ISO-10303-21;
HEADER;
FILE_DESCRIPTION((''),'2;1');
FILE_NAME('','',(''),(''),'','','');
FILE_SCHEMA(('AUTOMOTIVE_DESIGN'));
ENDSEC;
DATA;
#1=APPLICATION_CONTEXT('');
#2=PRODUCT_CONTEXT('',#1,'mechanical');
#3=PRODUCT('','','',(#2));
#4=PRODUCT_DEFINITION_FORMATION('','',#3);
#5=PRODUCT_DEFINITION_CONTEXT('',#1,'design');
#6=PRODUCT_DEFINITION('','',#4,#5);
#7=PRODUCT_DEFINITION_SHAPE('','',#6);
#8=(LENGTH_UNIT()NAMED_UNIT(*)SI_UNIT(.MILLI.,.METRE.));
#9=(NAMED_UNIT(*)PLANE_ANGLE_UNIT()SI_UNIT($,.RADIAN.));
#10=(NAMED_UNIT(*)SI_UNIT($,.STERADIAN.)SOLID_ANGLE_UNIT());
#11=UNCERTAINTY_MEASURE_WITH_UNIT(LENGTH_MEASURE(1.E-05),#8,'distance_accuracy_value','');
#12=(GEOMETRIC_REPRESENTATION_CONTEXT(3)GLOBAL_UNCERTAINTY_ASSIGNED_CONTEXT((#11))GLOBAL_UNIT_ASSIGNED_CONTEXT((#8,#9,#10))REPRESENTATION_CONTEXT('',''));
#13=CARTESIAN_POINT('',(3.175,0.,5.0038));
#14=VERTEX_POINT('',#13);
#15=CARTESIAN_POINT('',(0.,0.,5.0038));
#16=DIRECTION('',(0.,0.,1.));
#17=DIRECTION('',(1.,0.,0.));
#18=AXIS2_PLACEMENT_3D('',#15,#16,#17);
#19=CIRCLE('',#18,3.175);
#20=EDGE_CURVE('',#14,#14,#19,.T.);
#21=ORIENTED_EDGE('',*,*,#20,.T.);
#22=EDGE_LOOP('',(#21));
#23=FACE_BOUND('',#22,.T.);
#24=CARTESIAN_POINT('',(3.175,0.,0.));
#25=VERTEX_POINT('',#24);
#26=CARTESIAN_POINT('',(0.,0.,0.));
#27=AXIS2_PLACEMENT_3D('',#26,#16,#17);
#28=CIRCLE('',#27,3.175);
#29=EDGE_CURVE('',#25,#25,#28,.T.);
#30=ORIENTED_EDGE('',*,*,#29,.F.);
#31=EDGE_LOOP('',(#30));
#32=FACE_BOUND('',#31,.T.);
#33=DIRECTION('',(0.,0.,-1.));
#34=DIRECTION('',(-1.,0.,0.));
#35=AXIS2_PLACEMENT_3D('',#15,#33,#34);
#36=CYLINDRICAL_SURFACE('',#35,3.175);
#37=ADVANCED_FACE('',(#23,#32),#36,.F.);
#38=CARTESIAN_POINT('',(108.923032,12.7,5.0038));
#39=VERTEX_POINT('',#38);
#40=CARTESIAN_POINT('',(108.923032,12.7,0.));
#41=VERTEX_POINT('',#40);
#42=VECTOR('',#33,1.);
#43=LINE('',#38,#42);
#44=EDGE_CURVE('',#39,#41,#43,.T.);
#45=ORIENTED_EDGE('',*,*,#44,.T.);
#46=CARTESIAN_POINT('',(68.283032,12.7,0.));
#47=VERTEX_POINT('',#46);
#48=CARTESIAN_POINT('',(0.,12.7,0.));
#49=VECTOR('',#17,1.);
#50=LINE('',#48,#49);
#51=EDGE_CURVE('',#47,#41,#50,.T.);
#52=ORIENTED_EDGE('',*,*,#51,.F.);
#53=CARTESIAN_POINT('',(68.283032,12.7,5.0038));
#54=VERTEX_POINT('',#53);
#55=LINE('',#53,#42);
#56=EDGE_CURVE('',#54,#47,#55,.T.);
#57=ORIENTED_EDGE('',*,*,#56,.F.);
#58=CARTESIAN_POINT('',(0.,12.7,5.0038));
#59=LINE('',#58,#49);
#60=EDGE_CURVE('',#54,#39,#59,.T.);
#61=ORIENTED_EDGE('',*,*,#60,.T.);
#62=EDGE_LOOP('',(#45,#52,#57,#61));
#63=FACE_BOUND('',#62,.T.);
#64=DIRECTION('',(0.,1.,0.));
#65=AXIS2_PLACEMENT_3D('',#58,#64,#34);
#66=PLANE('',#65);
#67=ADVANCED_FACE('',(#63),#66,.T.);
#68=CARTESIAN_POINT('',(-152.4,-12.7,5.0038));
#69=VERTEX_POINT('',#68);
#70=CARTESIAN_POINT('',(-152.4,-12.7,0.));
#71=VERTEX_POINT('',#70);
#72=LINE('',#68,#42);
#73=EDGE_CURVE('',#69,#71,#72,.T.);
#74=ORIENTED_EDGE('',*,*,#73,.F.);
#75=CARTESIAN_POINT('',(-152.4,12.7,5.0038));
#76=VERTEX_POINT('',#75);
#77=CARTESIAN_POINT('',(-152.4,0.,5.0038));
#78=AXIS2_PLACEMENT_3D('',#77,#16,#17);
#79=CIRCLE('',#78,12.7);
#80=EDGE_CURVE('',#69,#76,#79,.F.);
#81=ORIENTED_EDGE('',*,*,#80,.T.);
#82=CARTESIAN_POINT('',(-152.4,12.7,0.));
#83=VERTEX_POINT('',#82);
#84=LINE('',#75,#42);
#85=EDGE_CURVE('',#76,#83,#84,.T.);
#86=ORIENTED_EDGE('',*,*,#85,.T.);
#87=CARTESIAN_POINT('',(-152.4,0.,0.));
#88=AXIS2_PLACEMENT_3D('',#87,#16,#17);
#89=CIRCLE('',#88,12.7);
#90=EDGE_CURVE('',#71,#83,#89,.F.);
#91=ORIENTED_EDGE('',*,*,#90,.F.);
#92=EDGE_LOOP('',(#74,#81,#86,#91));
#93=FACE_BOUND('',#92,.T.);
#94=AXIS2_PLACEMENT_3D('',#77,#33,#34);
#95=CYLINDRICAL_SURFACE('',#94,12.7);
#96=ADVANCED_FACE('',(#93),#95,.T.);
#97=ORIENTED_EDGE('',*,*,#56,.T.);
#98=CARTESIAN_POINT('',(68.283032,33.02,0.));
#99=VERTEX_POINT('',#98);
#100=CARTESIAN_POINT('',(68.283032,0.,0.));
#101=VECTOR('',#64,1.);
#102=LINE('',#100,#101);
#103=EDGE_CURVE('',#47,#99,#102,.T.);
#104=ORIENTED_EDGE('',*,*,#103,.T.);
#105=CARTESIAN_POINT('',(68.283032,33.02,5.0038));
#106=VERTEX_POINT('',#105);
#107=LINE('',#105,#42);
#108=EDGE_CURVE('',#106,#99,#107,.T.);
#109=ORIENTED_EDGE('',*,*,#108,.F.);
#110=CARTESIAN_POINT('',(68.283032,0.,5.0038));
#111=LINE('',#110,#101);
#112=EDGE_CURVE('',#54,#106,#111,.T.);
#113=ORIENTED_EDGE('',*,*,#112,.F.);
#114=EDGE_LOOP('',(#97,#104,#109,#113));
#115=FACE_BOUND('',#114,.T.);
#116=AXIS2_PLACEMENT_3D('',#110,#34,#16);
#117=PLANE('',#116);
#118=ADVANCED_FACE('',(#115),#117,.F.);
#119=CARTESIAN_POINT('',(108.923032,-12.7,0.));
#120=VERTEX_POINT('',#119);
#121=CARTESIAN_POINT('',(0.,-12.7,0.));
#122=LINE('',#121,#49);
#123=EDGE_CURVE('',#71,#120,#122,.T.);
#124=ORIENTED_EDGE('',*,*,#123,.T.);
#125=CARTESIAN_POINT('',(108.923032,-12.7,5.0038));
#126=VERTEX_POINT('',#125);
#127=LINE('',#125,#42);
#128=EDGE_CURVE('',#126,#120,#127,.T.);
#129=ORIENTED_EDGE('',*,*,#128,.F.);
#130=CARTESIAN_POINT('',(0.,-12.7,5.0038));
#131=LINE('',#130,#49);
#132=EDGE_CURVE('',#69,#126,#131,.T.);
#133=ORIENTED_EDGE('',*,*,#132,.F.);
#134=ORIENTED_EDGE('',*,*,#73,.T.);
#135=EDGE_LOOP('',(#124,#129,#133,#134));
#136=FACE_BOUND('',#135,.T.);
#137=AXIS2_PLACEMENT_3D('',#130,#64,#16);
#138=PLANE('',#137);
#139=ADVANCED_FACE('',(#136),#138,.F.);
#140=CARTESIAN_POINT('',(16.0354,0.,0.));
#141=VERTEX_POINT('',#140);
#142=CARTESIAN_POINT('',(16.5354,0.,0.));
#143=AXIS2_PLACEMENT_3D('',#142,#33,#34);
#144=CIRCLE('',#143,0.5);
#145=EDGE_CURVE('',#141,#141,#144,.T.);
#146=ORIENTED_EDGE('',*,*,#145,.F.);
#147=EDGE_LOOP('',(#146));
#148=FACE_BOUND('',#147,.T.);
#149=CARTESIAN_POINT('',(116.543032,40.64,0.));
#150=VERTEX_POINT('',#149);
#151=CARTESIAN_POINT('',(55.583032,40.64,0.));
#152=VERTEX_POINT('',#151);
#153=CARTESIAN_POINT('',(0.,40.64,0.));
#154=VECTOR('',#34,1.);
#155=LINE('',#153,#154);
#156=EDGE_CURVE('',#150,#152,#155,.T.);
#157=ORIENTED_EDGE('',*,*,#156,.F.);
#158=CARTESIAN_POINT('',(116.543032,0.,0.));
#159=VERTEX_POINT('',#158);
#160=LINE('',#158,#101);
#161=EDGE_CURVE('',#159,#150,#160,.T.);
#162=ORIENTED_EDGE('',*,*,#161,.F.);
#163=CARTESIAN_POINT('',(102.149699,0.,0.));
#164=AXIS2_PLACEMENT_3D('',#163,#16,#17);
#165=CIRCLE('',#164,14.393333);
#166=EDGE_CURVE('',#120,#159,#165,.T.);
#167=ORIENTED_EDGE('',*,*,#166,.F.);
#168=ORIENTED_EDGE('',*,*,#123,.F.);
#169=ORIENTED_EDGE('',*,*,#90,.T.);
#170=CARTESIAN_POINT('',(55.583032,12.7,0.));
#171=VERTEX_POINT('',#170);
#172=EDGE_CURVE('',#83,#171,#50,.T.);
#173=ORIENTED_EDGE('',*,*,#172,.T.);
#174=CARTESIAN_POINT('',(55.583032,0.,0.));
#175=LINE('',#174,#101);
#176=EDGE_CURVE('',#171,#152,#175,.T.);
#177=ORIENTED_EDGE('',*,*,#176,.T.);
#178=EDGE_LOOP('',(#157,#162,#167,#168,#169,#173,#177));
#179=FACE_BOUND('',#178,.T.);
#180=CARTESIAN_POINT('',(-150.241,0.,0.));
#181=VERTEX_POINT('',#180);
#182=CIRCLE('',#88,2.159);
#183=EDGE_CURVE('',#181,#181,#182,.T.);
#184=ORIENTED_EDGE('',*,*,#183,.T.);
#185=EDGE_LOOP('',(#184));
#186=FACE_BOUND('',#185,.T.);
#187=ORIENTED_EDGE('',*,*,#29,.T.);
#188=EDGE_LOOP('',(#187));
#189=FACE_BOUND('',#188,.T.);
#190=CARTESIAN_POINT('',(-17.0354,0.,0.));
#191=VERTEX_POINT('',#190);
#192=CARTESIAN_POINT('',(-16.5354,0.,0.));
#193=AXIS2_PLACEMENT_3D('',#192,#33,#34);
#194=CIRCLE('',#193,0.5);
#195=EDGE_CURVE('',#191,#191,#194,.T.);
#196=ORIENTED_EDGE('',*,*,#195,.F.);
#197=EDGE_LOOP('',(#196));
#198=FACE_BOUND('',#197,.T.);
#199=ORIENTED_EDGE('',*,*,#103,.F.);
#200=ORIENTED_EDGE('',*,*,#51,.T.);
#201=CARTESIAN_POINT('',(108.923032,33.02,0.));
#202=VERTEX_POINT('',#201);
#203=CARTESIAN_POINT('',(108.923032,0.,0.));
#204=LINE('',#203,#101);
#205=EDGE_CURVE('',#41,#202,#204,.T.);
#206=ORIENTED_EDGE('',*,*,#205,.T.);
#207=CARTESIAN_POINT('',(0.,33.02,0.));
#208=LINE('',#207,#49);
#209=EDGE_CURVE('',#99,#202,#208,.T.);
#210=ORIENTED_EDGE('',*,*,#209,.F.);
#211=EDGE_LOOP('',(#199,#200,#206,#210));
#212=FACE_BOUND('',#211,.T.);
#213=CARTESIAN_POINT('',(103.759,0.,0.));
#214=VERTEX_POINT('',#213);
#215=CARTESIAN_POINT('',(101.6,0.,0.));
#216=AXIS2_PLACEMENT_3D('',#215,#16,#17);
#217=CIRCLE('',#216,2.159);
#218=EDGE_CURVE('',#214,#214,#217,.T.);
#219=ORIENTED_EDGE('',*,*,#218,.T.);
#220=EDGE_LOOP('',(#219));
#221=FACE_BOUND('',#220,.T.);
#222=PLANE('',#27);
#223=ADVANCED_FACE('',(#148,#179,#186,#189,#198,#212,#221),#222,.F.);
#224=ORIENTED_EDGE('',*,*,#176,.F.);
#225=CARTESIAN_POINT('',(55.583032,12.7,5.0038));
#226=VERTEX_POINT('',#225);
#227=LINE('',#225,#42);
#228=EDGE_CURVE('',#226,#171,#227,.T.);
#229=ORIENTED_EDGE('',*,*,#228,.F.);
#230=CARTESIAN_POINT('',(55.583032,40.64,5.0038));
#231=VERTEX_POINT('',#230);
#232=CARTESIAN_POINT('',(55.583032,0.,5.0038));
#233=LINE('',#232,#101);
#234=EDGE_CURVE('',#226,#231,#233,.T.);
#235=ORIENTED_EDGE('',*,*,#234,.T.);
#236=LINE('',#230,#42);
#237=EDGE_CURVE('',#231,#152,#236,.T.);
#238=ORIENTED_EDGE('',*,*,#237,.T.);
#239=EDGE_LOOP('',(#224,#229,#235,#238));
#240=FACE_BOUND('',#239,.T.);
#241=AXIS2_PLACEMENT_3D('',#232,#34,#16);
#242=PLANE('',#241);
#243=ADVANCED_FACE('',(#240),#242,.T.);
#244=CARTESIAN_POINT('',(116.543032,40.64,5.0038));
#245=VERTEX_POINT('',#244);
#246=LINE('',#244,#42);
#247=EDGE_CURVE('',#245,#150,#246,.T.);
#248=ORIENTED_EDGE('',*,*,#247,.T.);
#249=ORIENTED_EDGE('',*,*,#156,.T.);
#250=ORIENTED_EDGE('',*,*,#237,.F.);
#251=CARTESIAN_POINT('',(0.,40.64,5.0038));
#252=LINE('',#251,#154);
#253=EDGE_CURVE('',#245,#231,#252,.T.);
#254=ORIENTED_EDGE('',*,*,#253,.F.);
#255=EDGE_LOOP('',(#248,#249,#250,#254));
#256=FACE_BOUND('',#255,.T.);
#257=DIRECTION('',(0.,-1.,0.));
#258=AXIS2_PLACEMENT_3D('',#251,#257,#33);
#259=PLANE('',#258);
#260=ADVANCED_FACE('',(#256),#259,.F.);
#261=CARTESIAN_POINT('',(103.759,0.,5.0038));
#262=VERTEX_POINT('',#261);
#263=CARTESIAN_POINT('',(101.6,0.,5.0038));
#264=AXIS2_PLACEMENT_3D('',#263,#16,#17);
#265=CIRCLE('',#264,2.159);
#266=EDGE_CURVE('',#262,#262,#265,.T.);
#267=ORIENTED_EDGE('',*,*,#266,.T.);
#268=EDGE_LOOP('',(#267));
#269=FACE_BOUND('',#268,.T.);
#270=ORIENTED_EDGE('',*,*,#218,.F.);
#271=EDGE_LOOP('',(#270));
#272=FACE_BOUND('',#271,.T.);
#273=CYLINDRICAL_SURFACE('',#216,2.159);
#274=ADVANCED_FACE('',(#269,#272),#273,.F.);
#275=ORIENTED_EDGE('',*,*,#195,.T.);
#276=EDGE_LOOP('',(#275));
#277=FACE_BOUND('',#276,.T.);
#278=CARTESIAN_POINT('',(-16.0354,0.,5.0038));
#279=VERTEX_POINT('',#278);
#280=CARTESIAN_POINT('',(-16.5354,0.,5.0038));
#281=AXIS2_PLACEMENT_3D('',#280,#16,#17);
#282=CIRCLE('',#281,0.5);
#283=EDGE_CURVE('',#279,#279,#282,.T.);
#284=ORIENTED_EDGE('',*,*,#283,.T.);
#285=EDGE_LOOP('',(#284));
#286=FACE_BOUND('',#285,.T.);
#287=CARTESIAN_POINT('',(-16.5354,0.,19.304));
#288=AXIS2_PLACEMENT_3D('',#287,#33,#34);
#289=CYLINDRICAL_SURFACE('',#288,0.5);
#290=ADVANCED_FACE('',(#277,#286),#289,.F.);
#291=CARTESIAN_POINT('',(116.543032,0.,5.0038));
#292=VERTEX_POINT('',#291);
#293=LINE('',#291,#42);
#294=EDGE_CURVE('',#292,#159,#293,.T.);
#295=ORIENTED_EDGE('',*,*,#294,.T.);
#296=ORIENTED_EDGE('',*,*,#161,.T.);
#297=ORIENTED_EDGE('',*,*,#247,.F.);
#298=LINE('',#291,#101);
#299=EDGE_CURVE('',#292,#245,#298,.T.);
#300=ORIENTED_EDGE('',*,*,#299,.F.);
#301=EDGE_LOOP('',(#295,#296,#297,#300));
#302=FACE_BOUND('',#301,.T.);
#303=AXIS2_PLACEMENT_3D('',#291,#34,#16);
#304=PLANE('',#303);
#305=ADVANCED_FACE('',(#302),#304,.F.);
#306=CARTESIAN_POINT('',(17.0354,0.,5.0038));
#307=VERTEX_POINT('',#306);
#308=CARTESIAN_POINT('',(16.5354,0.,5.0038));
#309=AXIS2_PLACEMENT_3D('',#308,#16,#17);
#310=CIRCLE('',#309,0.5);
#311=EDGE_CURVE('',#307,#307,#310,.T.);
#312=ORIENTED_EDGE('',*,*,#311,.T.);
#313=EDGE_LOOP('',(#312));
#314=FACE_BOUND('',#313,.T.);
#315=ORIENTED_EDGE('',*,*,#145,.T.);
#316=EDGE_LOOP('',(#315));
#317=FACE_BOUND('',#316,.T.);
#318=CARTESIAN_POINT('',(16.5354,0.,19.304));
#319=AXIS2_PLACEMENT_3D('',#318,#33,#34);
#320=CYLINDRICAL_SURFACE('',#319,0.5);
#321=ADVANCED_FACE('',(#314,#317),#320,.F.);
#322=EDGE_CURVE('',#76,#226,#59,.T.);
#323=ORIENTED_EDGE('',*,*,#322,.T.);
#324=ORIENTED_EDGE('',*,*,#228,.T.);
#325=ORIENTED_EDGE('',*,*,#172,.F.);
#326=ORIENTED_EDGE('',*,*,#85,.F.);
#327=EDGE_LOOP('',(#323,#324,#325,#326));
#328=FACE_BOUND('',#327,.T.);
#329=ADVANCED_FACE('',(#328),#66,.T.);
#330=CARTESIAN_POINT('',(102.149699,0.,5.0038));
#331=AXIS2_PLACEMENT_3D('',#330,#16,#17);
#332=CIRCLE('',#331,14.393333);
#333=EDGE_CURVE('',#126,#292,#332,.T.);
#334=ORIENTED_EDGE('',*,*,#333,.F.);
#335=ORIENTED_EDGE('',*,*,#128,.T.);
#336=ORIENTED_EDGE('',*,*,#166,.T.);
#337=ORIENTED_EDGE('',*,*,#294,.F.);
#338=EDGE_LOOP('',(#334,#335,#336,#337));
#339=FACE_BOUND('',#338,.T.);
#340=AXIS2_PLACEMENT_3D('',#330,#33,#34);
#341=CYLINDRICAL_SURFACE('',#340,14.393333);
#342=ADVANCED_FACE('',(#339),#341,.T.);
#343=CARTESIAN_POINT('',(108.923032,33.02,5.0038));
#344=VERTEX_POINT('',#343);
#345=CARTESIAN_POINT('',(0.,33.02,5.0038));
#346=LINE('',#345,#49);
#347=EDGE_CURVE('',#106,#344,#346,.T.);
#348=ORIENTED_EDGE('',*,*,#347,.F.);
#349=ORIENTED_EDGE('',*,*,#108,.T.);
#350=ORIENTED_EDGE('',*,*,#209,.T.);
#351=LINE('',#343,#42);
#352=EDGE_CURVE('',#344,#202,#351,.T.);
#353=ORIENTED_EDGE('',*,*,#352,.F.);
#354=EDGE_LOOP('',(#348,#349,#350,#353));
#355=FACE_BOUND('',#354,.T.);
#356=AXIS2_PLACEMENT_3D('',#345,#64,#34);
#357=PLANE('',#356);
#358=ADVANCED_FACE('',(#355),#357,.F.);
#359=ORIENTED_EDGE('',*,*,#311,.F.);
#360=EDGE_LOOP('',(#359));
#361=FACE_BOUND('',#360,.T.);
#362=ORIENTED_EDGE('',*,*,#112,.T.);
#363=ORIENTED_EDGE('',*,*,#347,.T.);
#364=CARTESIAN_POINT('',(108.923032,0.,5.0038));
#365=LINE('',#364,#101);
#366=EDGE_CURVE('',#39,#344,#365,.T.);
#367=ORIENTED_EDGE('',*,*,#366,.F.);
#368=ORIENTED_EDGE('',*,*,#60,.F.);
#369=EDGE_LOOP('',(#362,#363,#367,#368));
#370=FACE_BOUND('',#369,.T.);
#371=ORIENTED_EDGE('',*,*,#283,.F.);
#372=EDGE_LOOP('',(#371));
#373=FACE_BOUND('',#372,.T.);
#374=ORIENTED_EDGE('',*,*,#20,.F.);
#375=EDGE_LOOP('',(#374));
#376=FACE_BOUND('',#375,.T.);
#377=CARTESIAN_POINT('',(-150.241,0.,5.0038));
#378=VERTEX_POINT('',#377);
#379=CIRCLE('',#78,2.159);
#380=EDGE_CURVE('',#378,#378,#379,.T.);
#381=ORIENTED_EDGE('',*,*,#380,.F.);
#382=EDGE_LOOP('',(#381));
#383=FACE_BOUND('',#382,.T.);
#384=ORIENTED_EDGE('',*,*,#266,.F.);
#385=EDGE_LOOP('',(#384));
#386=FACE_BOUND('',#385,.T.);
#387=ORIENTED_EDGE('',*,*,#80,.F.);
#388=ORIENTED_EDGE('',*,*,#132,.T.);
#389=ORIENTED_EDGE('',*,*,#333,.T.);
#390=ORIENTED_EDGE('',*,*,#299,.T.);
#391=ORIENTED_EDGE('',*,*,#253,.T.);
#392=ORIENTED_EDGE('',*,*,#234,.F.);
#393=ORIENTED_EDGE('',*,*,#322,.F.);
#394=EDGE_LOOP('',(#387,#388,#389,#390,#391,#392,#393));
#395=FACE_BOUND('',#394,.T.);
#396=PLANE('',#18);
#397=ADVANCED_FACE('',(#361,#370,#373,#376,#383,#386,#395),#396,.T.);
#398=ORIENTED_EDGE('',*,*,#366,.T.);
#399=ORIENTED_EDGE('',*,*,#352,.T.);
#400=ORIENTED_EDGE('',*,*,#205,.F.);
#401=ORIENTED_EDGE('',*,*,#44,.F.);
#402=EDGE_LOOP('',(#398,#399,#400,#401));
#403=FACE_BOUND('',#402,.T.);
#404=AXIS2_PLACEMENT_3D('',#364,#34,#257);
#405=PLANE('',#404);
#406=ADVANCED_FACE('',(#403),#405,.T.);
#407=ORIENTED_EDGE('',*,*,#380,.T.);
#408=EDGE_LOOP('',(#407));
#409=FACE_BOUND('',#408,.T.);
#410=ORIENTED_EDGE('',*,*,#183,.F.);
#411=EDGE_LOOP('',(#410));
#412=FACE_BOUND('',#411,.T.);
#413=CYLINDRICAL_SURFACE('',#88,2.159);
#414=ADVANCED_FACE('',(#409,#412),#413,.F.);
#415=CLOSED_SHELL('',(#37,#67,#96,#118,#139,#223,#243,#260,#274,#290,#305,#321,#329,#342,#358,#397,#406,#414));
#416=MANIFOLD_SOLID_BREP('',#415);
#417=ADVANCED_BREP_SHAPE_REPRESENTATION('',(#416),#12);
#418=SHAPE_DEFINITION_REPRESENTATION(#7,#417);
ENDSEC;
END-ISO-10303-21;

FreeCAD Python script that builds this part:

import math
import FreeCAD as App
import Part
import Sketcher
Q = App.Units.Quantity

doc = App.newDocument("Part")
body = doc.addObject("PartDesign::Body", "Body")

# Sketch on XY plane
sketch1 = body.newObject("Sketcher::SketchObject", "Sketch")
sketch1.AttachmentSupport = (doc.getObject("XY_Plane"), [""])
sketch1.MapMode = "FlatFace"
sketch1.addGeometry([
    Part.ArcOfCircle(Part.Circle(App.Vector(102.149699, 0, 0), App.Vector(0, 0, 1), 14.393333), math.radians(-61.927513), math.radians(0)),  # 0
    Part.LineSegment(App.Vector(116.543032, 0, 0), App.Vector(116.543032, 40.64, 0)),  # 1
    Part.LineSegment(App.Vector(116.543032, 40.64, 0), App.Vector(55.583032, 40.64, 0)),  # 2
    Part.LineSegment(App.Vector(55.583032, 40.64, 0), App.Vector(55.583032, 12.7, 0)),  # 3
    Part.LineSegment(App.Vector(55.583032, 12.7, 0), App.Vector(-152.4, 12.7, 0)),  # 4
    Part.ArcOfCircle(Part.Circle(App.Vector(-152.4, 0, 0), App.Vector(0, 0, 1), 12.7), math.radians(90), math.radians(270)),  # 5
    Part.LineSegment(App.Vector(-152.4, -12.7, 0), App.Vector(108.923032, -12.7, 0)),  # 6
    Part.Circle(App.Vector(-152.4, 0, 0), App.Vector(0, 0, 1), 6.35),  # 7
    Part.Circle(App.Vector(0, 0, 0), App.Vector(0, 0, 1), 3.175),  # 8
    Part.Circle(App.Vector(101.6, 0, 0), App.Vector(0, 0, 1), 6.35),  # 9
    Part.LineSegment(App.Vector(108.923032, 12.7, 0), App.Vector(68.283032, 12.7, 0)),  # 10
    Part.LineSegment(App.Vector(68.283032, 12.7, 0), App.Vector(68.283032, 33.02, 0)),  # 11
    Part.LineSegment(App.Vector(68.283032, 33.02, 0), App.Vector(108.923032, 33.02, 0)),  # 12
    Part.LineSegment(App.Vector(108.923032, 33.02, 0), App.Vector(108.923032, 12.7, 0)),  # 13
], False)
sketch1.addConstraint([
    Sketcher.Constraint("Tangent", 0, 2, 1, 1),
    Sketcher.Constraint("Coincident", 1, 2, 2, 1),
    Sketcher.Constraint("Coincident", 2, 2, 3, 1),
    Sketcher.Constraint("Coincident", 3, 2, 4, 1),
    Sketcher.Constraint("Tangent", 4, 2, 5, 1),
    Sketcher.Constraint("Tangent", 5, 2, 6, 1),
    Sketcher.Constraint("Coincident", 6, 2, 0, 1),
    Sketcher.Constraint("Coincident", 10, 2, 11, 1),
    Sketcher.Constraint("Coincident", 11, 2, 12, 1),
    Sketcher.Constraint("Coincident", 12, 2, 13, 1),
    Sketcher.Constraint("Coincident", 13, 2, 10, 1),
    Sketcher.Constraint("Vertical", 1),
    Sketcher.Constraint("Horizontal", 2),
    Sketcher.Constraint("Vertical", 3),
    Sketcher.Constraint("Horizontal", 4),
    Sketcher.Constraint("Horizontal", 6),
    Sketcher.Constraint("Horizontal", 10),
    Sketcher.Constraint("Vertical", 11),
    Sketcher.Constraint("Horizontal", 12),
    Sketcher.Constraint("Vertical", 13),
    Sketcher.Constraint("Coincident", 8, 3, -1, 1),
    Sketcher.Constraint("Coincident", 7, 3, 5, 3),
    Sketcher.Constraint("Equal", 7, 9),
    Sketcher.Constraint("Symmetric", 6, 2, 13, 2, -1),
    Sketcher.Constraint("PointOnObject", 0, 3, -1),
    Sketcher.Constraint("PointOnObject", 5, 3, -1),
    Sketcher.Constraint("PointOnObject", 9, 3, -1),
    Sketcher.Constraint("Equal", 12, 1),
    Sketcher.Constraint("Diameter", 7, Q("0.5 in")),
    Sketcher.Constraint("Radius", 5, Q("0.5 in")),
    Sketcher.Constraint("Diameter", 8, Q("0.25 in")),
    Sketcher.Constraint("DistanceX", 2, 2, 2, 1, Q("2.4 in")),
    Sketcher.Constraint("DistanceX", 10, 2, 10, 1, Q("1.6 in")),
    Sketcher.Constraint("DistanceY", 11, 1, 11, 2, Q("0.8 in")),
    Sketcher.Constraint("DistanceX", 5, 3, -1, 1, Q("6 in")),
    Sketcher.Constraint("DistanceX", -1, 1, 9, 3, Q("4 in")),
    Sketcher.Constraint("DistanceX", 6, 2, 0, 2, Q("0.3 in")),
    Sketcher.Constraint("DistanceX", -1, 1, 0, 3, 102.149699),
])
pad1 = body.newObject("PartDesign::Pad", "Pad")
pad1.Profile = sketch1
pad1.Length = Q("0.197 in")

# Sketch on XY plane
sketch2 = body.newObject("Sketcher::SketchObject", "Sketch001")
sketch2.AttachmentSupport = (doc.getObject("XY_Plane"), [""])
sketch2.MapMode = "FlatFace"
sketch2.AttachmentOffset = App.Placement(App.Vector(0, 0, 0.197 * 25.4), App.Rotation())
sketch2.addGeometry([
    Part.Circle(App.Vector(-152.4, 0, 0), App.Vector(0, 0, 1), 10.425848),
    Part.Circle(App.Vector(-152.4, 0, 0), App.Vector(0, 0, 1), 2.159),
    Part.Circle(App.Vector(101.6, 0, 0), App.Vector(0, 0, 1), 8.142875),
    Part.Circle(App.Vector(101.6, 0, 0), App.Vector(0, 0, 1), 2.159),
], False)
sketch2.addConstraint([
    Sketcher.Constraint("Coincident", 1, 3, 0, 3),
    Sketcher.Constraint("Coincident", 3, 3, 2, 3),
    Sketcher.Constraint("Equal", 1, 3),
    Sketcher.Constraint("PointOnObject", 0, 3, -1),
    Sketcher.Constraint("PointOnObject", 2, 3, -1),
    Sketcher.Constraint("Diameter", 1, Q("0.17 in")),
    Sketcher.Constraint("DistanceX", 0, 3, -1, 1, Q("6 in")),
    Sketcher.Constraint("DistanceX", -1, 1, 2, 3, Q("4 in")),
    Sketcher.Constraint("Diameter", 2, 16.28575),
    Sketcher.Constraint("Diameter", 0, 20.851697),
])
pad2 = body.newObject("PartDesign::Pad", "Pad001")
pad2.Profile = sketch2
pad2.Length = Q("0.197 in")
pad2.Reversed = True

# Sketch on XY plane
sketch3 = body.newObject("Sketcher::SketchObject", "Sketch002")
sketch3.AttachmentSupport = (doc.getObject("XY_Plane"), [""])
sketch3.MapMode = "FlatFace"
sketch3.addGeometry([
    Part.Circle(App.Vector(-16.5354, 0, 0), App.Vector(0, 0, 1), 0.5),
    Part.Circle(App.Vector(16.5354, 0, 0), App.Vector(0, 0, 1), 0.5),
], False)
sketch3.addConstraint([
    Sketcher.Constraint("Equal", 0, 1),
    Sketcher.Constraint("Symmetric", 0, 3, 1, 3, -1, 1),
    Sketcher.Constraint("PointOnObject", 0, 3, -1),
    Sketcher.Constraint("Diameter", 0, 1.000001),
    Sketcher.Constraint("DistanceX", 0, 3, -1, 1, Q("0.651 in")),
])
pocket1 = body.newObject("PartDesign::Pocket", "Pocket")
pocket1.Profile = sketch3
pocket1.Length = Q("0.76 in")
pocket1.Reversed = True

doc.recompute()
